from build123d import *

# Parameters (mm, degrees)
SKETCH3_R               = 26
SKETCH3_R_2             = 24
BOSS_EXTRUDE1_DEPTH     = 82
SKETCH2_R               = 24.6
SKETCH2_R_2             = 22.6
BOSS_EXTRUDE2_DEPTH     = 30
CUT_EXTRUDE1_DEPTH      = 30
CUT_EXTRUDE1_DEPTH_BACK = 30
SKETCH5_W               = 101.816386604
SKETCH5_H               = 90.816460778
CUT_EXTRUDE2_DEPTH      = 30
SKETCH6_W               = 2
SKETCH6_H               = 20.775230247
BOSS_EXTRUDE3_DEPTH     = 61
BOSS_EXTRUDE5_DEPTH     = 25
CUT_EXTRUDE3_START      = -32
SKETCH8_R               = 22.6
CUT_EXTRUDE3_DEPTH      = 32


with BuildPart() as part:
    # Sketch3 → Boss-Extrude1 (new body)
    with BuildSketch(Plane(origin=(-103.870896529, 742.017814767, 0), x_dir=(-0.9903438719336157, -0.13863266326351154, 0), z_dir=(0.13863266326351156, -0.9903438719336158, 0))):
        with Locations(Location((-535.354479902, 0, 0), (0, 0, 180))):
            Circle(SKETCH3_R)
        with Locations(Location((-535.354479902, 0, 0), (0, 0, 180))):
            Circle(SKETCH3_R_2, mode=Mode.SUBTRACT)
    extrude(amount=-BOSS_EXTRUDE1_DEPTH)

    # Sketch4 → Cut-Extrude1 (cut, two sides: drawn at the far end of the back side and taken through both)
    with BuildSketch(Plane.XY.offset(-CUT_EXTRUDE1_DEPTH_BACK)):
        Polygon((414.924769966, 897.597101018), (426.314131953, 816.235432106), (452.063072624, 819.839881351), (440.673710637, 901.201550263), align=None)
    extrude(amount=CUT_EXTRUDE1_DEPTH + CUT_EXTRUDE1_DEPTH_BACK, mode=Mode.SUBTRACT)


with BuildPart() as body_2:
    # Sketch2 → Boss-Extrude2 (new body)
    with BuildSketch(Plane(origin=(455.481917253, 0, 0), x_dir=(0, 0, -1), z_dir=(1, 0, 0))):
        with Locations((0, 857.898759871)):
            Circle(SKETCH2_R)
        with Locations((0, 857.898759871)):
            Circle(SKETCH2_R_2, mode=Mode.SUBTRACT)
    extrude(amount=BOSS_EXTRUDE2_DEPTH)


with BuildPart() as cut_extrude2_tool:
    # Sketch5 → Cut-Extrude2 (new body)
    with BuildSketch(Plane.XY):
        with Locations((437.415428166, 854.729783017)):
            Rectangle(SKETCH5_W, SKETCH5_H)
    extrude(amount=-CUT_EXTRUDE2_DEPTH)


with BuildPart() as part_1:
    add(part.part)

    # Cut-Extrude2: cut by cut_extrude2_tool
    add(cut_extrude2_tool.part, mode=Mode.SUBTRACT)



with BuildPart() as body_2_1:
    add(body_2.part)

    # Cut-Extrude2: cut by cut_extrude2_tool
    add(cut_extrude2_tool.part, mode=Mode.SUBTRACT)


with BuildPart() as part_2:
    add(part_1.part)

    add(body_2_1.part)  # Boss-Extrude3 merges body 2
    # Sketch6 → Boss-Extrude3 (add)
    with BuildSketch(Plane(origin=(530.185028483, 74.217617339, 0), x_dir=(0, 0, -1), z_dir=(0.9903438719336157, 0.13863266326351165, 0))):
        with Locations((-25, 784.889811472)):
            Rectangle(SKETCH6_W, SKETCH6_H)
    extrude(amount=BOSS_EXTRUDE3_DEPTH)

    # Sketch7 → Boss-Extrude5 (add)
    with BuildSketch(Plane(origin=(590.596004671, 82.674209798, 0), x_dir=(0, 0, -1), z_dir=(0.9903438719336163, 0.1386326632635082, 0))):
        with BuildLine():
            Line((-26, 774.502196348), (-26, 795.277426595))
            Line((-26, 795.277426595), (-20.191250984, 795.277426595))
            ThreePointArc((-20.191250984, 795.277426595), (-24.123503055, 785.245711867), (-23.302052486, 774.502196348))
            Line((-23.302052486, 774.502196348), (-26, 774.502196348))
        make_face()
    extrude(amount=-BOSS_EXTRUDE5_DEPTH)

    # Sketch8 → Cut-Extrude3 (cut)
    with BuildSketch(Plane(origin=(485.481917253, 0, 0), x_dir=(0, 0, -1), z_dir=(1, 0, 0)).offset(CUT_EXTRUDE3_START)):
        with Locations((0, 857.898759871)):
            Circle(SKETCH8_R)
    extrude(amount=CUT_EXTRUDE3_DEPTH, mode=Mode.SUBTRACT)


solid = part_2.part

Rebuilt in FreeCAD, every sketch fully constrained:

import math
import FreeCAD as App
import Part
import Sketcher


def add_polygon(sketch, points):
    """Adds a closed chain of lines whose ends are joined by coincident constraints."""
    first, n = sketch.GeometryCount, len(points)
    for a, b in zip(points, points[1:] + points[:1]):
        sketch.addGeometry(Part.LineSegment(App.Vector(*a, 0), App.Vector(*b, 0)), False)
    for i in range(n):
        sketch.addConstraint(Sketcher.Constraint("Coincident", first + i, 2, first + (i + 1) % n, 1))

doc = App.newDocument("Part")
body = doc.addObject("PartDesign::Body", "Body")

# Sketch on an angled plane
sketch1 = body.newObject("Sketcher::SketchObject", "Sketch")
sketch1.Placement = App.Placement(App.Vector(-103.870897, 742.017815, 0), App.Rotation(App.Vector(-0.990343872, -0.138632663, 0), App.Vector(0, 0, -1), App.Vector(0.138632663, -0.990343872, 0), "ZXY"))
sketch1.addGeometry(Part.Circle(App.Vector(-535, 0, 0), App.Vector(0, 0, 1), 26), False)
sketch1.addGeometry(Part.Circle(App.Vector(-535, 0, 0), App.Vector(0, 0, 1), 24), False)
sketch1.addConstraint(Sketcher.Constraint("Coincident", 1, 3, 0, 3))
sketch1.addConstraint(Sketcher.Constraint("PointOnObject", 0, 3, -1))
sketch1.addConstraint(Sketcher.Constraint("Diameter", 0, 52.0))
sketch1.addConstraint(Sketcher.Constraint("Diameter", 1, 48.0))
sketch1.addConstraint(Sketcher.Constraint("DistanceX", 0, 3, -1, 1, 535.35448))
pad1 = body.newObject("PartDesign::Pad", "Pad")
pad1.Profile = sketch1
pad1.Length = 82
pad1.Reversed = True

# Sketch on XY plane
sketch2 = body.newObject("Sketcher::SketchObject", "Sketch001")
sketch2.AttachmentSupport = (doc.getObject("XY_Plane"), [""])
sketch2.MapMode = "FlatFace"
add_polygon(sketch2, [(415, 898), (426, 816), (452, 820), (441, 901)])  # lines 0-3
sketch2.addConstraint(Sketcher.Constraint("Perpendicular", 0, 1))
sketch2.addConstraint(Sketcher.Constraint("Perpendicular", 1, 2))
sketch2.addConstraint(Sketcher.Constraint("Perpendicular", 2, 3))
sketch2.addConstraint(Sketcher.Constraint("Distance", 1, 26.0))
sketch2.addConstraint(Sketcher.Constraint("DistanceY", -1, 1, 3, 2, 897.597101))
sketch2.addConstraint(Sketcher.Constraint("DistanceX", -1, 1, 0, 2, 426.314132))
sketch2.addConstraint(Sketcher.Constraint("DistanceY", -1, 1, 1, 2, 819.839881))
sketch2.addConstraint(Sketcher.Constraint("DistanceX", -1, 1, 2, 2, 440.673711))
pocket1 = body.newObject("PartDesign::Pocket", "Pocket")
pocket1.Profile = sketch2
pocket1.Type = "ThroughAll"
pocket1.Midplane = True
body2 = doc.addObject("PartDesign::Body", "Body001")

# Sketch on YZ plane
sketch3 = body2.newObject("Sketcher::SketchObject", "Sketch002")
sketch3.AttachmentSupport = (doc.getObject("YZ_Plane001"), [""])
sketch3.MapMode = "FlatFace"
sketch3.AttachmentOffset = App.Placement(App.Vector(0, 0, 455.481917), App.Rotation())
sketch3.addGeometry(Part.Circle(App.Vector(858, 0, 0), App.Vector(0, 0, 1), 25), False)
sketch3.addGeometry(Part.Circle(App.Vector(858, 0, 0), App.Vector(0, 0, 1), 23), False)
sketch3.addConstraint(Sketcher.Constraint("Coincident", 1, 3, 0, 3))
sketch3.addConstraint(Sketcher.Constraint("PointOnObject", 0, 3, -1))
sketch3.addConstraint(Sketcher.Constraint("Diameter", 0, 49.2))
sketch3.addConstraint(Sketcher.Constraint("Diameter", 1, 45.2))
sketch3.addConstraint(Sketcher.Constraint("DistanceX", -1, 1, 0, 3, 857.89876))
pad2 = body2.newObject("PartDesign::Pad", "Pad001")
pad2.Profile = sketch3
pad2.Length = 30
body3 = doc.addObject("PartDesign::Body", "Body002")

# Sketch on XY plane
sketch4 = body3.newObject("Sketcher::SketchObject", "Sketch003")
sketch4.AttachmentSupport = (doc.getObject("XY_Plane002"), [""])
sketch4.MapMode = "FlatFace"
add_polygon(sketch4, [(387, 900), (387, 809), (488, 809), (488, 900)])  # lines 0-3
sketch4.addConstraint(Sketcher.Constraint("Vertical", 0))
sketch4.addConstraint(Sketcher.Constraint("Horizontal", 1))
sketch4.addConstraint(Sketcher.Constraint("Vertical", 2))
sketch4.addConstraint(Sketcher.Constraint("Horizontal", 3))
sketch4.addConstraint(Sketcher.Constraint("DistanceY", 0, 2, 0, 1, 90.816461))
sketch4.addConstraint(Sketcher.Constraint("DistanceX", 1, 1, 1, 2, 101.816387))
sketch4.addConstraint(Sketcher.Constraint("DistanceX", -1, 1, 1, 2, 488.323621))
sketch4.addConstraint(Sketcher.Constraint("DistanceY", -1, 1, 0, 2, 809.321553))
pad3 = body3.newObject("PartDesign::Pad", "Pad002")
pad3.Profile = sketch4
pad3.Length = 30
pad3.Reversed = True
doc.recompute()

body4 = doc.addObject("PartDesign::Body", "Body003")
body4.BaseFeature = body3
boolean = body.newObject("PartDesign::Boolean", "Boolean")
boolean.Type = "Cut"
boolean.addObjects([body4])
doc.recompute()

boolean2 = body2.newObject("PartDesign::Boolean", "Boolean001")
boolean2.Type = "Cut"
boolean2.addObjects([body3])
body.AllowCompound = True
doc.recompute()

boolean3 = body.newObject("PartDesign::Boolean", "Boolean002")
boolean3.Type = "Fuse"
boolean3.addObjects([body2])

# Sketch on an angled plane
sketch5 = body.newObject("Sketcher::SketchObject", "Sketch004")
sketch5.Placement = App.Placement(App.Vector(530.185028, 74.217617, 0), App.Rotation(App.Vector(0, 0, -1), App.Vector(-0.138632663, 0.990343872, 0), App.Vector(0.990343872, 0.138632663, 0), "ZXY"))
add_polygon(sketch5, [(-26, 795.3), (-26, 774.5), (-24, 774.5), (-24, 795.3)])  # lines 0-3
sketch5.addConstraint(Sketcher.Constraint("Vertical", 0))
sketch5.addConstraint(Sketcher.Constraint("Horizontal", 1))
sketch5.addConstraint(Sketcher.Constraint("Vertical", 2))
sketch5.addConstraint(Sketcher.Constraint("Horizontal", 3))
sketch5.addConstraint(Sketcher.Constraint("DistanceX", 1, 1, 1, 2, 2.0))
sketch5.addConstraint(Sketcher.Constraint("DistanceX", 0, 2, -1, 1, 26.0))
sketch5.addConstraint(Sketcher.Constraint("DistanceY", 0, 2, 0, 1, 20.77523))
sketch5.addConstraint(Sketcher.Constraint("DistanceY", -1, 1, 0, 2, 774.502196))
pad4 = body.newObject("PartDesign::Pad", "Pad003")
pad4.Profile = sketch5
pad4.Length = 61

# Sketch on an angled plane
sketch6 = body.newObject("Sketcher::SketchObject", "Sketch005")
sketch6.Placement = App.Placement(App.Vector(590.596005, 82.67421, 0), App.Rotation(App.Vector(0, 0, -1), App.Vector(-0.138632663, 0.990343872, 0), App.Vector(0.990343872, 0.138632663, 0), "ZXY"))
sketch6.addGeometry(Part.LineSegment(App.Vector(-26, 795.3, 0), App.Vector(-26, 774.5, 0)), False)
sketch6.addGeometry(Part.LineSegment(App.Vector(-26, 774.5, 0), App.Vector(-23.3, 774.5, 0)), False)
sketch6.addGeometry(Part.ArcOfCircle(Part.Circle(App.Vector(-0.2, 781.7, 0), App.Vector(0, 0, 1), 24.2), math.radians(146), math.radians(197)), False)
sketch6.addGeometry(Part.LineSegment(App.Vector(-20.2, 795.3, 0), App.Vector(-26, 795.3, 0)), False)
sketch6.addConstraint(Sketcher.Constraint("Coincident", 0, 2, 1, 1))
sketch6.addConstraint(Sketcher.Constraint("Coincident", 1, 2, 2, 2))
sketch6.addConstraint(Sketcher.Constraint("Coincident", 2, 1, 3, 1))
sketch6.addConstraint(Sketcher.Constraint("Coincident", 3, 2, 0, 1))
sketch6.addConstraint(Sketcher.Constraint("Vertical", 0))
sketch6.addConstraint(Sketcher.Constraint("Horizontal", 1))
sketch6.addConstraint(Sketcher.Constraint("Horizontal", 3))
sketch6.addConstraint(Sketcher.Constraint("DistanceX", 0, 2, -1, 1, 26.0))
sketch6.addConstraint(Sketcher.Constraint("Radius", 2, 24.153358))
sketch6.addConstraint(Sketcher.Constraint("DistanceX", 3, 2, 3, 1, 5.808749))
sketch6.addConstraint(Sketcher.Constraint("DistanceY", 0, 2, 0, 1, 20.77523))
sketch6.addConstraint(Sketcher.Constraint("DistanceX", 1, 2, 2, 1, 3.110802))
sketch6.addConstraint(Sketcher.Constraint("DistanceY", -1, 1, 2, 3, 781.668958))
pad5 = body.newObject("PartDesign::Pad", "Pad004")
pad5.Profile = sketch6
pad5.Length = 25
pad5.Reversed = True

# Sketch on YZ plane
sketch7 = body.newObject("Sketcher::SketchObject", "Sketch006")
sketch7.AttachmentSupport = (doc.getObject("YZ_Plane"), [""])
sketch7.MapMode = "FlatFace"
sketch7.AttachmentOffset = App.Placement(App.Vector(0, 0, 453.481917), App.Rotation())
sketch7.addGeometry(Part.Circle(App.Vector(858, 0, 0), App.Vector(0, 0, 1), 23), False)
sketch7.addConstraint(Sketcher.Constraint("PointOnObject", 0, 3, -1))
sketch7.addConstraint(Sketcher.Constraint("Diameter", 0, 45.2))
sketch7.addConstraint(Sketcher.Constraint("DistanceX", -1, 1, 0, 3, 857.89876))
pocket2 = body.newObject("PartDesign::Pocket", "Pocket001")
pocket2.Profile = sketch7
pocket2.Length = 32
pocket2.Reversed = True

doc.recompute()
